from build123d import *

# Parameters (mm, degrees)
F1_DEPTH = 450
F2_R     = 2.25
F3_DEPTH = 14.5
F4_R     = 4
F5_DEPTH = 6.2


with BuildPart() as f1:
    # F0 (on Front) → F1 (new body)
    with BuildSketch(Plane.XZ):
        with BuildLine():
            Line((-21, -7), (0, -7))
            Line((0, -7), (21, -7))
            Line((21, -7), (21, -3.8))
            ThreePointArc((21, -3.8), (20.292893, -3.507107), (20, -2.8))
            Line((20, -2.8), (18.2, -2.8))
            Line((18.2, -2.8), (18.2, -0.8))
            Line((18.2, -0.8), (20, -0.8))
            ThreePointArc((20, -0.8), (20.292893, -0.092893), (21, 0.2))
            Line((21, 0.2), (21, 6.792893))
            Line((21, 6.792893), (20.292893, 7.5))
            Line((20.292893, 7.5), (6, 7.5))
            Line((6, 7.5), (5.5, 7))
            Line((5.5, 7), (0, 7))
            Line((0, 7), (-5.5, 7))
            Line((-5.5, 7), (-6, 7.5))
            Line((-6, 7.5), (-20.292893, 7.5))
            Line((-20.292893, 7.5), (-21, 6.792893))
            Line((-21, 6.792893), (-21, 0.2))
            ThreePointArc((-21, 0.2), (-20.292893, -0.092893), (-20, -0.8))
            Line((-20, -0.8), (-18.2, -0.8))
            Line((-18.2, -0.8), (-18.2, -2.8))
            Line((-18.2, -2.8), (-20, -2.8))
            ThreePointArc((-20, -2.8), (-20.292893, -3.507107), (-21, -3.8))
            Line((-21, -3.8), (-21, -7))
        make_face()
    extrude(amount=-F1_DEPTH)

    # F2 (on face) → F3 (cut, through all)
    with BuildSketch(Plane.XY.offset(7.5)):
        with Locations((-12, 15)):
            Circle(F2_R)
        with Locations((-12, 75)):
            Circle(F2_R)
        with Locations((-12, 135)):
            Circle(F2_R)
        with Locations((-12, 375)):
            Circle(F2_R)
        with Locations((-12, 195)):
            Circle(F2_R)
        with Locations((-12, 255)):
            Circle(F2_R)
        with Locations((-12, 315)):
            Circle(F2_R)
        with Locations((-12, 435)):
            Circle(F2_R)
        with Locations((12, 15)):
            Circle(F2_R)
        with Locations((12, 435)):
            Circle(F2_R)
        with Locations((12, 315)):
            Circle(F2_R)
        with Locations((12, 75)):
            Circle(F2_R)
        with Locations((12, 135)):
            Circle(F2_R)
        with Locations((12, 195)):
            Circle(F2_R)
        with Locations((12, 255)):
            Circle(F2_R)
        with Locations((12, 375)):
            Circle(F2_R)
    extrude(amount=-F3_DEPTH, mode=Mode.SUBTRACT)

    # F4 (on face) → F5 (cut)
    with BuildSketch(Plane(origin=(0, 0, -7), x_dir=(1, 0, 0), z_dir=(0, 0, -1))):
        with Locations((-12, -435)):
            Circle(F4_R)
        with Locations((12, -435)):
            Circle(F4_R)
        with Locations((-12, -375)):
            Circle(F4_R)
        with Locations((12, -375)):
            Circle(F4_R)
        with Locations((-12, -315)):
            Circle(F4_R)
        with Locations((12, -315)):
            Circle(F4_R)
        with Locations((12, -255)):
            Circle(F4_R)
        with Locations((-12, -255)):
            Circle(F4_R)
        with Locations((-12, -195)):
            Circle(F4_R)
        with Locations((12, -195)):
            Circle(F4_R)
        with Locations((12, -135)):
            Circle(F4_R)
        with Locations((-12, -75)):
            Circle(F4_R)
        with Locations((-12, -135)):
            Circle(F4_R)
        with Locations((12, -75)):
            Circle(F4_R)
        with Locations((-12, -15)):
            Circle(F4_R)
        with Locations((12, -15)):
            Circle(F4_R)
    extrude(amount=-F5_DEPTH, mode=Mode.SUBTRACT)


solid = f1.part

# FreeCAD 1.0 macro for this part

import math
import FreeCAD as App
import Part
import Sketcher

doc = App.newDocument("Part")
body = doc.addObject("PartDesign::Body", "Body")

sketch1 = body.newObject("Sketcher::SketchObject", "Sketch")
sketch1.AttachmentSupport = (doc.getObject("XZ_Plane"), [""])
sketch1.MapMode = "FlatFace"
sketch1.addGeometry([
    Part.LineSegment(App.Vector(-21, -7, 0), App.Vector(21, -7, 0)),
    Part.LineSegment(App.Vector(21, -7, 0), App.Vector(21, -3.8, 0)),
    Part.ArcOfCircle(Part.Circle(App.Vector(21, -2.8, 0), App.Vector(0, 0, 1), 1), math.radians(180), math.radians(270)),
    Part.LineSegment(App.Vector(20, -2.8, 0), App.Vector(18.2, -2.8, 0)),
    Part.LineSegment(App.Vector(18.2, -2.8, 0), App.Vector(18.2, -0.8, 0)),
    Part.LineSegment(App.Vector(18.2, -0.8, 0), App.Vector(20, -0.8, 0)),
    Part.ArcOfCircle(Part.Circle(App.Vector(21, -0.8, 0), App.Vector(0, 0, 1), 1), math.radians(90), math.radians(180)),
    Part.LineSegment(App.Vector(21, 0.2, 0), App.Vector(21, 6.8, 0)),
    Part.LineSegment(App.Vector(21, 6.8, 0), App.Vector(20.3, 7.5, 0)),
    Part.LineSegment(App.Vector(20.3, 7.5, 0), App.Vector(6, 7.5, 0)),
    Part.LineSegment(App.Vector(6, 7.5, 0), App.Vector(5.5, 7, 0)),
    Part.LineSegment(App.Vector(5.5, 7, 0), App.Vector(-5.5, 7, 0)),
    Part.LineSegment(App.Vector(-5.5, 7, 0), App.Vector(-6, 7.5, 0)),
    Part.LineSegment(App.Vector(-6, 7.5, 0), App.Vector(-20.3, 7.5, 0)),
    Part.LineSegment(App.Vector(-20.3, 7.5, 0), App.Vector(-21, 6.8, 0)),
    Part.LineSegment(App.Vector(-21, 6.8, 0), App.Vector(-21, 0.2, 0)),
    Part.ArcOfCircle(Part.Circle(App.Vector(-21, -0.8, 0), App.Vector(0, 0, 1), 1), math.radians(0), math.radians(90)),
    Part.LineSegment(App.Vector(-20, -0.8, 0), App.Vector(-18.2, -0.8, 0)),
    Part.LineSegment(App.Vector(-18.2, -0.8, 0), App.Vector(-18.2, -2.8, 0)),
    Part.LineSegment(App.Vector(-18.2, -2.8, 0), App.Vector(-20, -2.8, 0)),
    Part.ArcOfCircle(Part.Circle(App.Vector(-21, -2.8, 0), App.Vector(0, 0, 1), 1), math.radians(-90), math.radians(0)),
    Part.LineSegment(App.Vector(-21, -3.8, 0), App.Vector(-21, -7, 0)),
], False)
sketch1.addConstraint([
    Sketcher.Constraint("Coincident", 0, 2, 1, 1),
    Sketcher.Constraint("Coincident", 1, 2, 2, 2),
    Sketcher.Constraint("Coincident", 2, 1, 3, 1),
    Sketcher.Constraint("Coincident", 3, 2, 4, 1),
    Sketcher.Constraint("Coincident", 4, 2, 5, 1),
    Sketcher.Constraint("Coincident", 5, 2, 6, 2),
    Sketcher.Constraint("Coincident", 6, 1, 7, 1),
    Sketcher.Constraint("Coincident", 7, 2, 8, 1),
    Sketcher.Constraint("Coincident", 8, 2, 9, 1),
    Sketcher.Constraint("Coincident", 9, 2, 10, 1),
    Sketcher.Constraint("Coincident", 10, 2, 11, 1),
    Sketcher.Constraint("Coincident", 11, 2, 12, 1),
    Sketcher.Constraint("Coincident", 12, 2, 13, 1),
    Sketcher.Constraint("Coincident", 13, 2, 14, 1),
    Sketcher.Constraint("Coincident", 14, 2, 15, 1),
    Sketcher.Constraint("Coincident", 15, 2, 16, 2),
    Sketcher.Constraint("Coincident", 16, 1, 17, 1),
    Sketcher.Constraint("Coincident", 17, 2, 18, 1),
    Sketcher.Constraint("Coincident", 18, 2, 19, 1),
    Sketcher.Constraint("Coincident", 19, 2, 20, 2),
    Sketcher.Constraint("Coincident", 20, 1, 21, 1),
    Sketcher.Constraint("Coincident", 21, 2, 0, 1),
    Sketcher.Constraint("Horizontal", 0),
    Sketcher.Constraint("Vertical", 1),
    Sketcher.Constraint("Horizontal", 3),
    Sketcher.Constraint("Vertical", 4),
    Sketcher.Constraint("Horizontal", 5),
    Sketcher.Constraint("Vertical", 7),
    Sketcher.Constraint("Horizontal", 9),
    Sketcher.Constraint("Horizontal", 11),
    Sketcher.Constraint("Horizontal", 13),
    Sketcher.Constraint("Vertical", 15),
    Sketcher.Constraint("Horizontal", 17),
    Sketcher.Constraint("Vertical", 18),
    Sketcher.Constraint("Horizontal", 19),
    Sketcher.Constraint("Vertical", 21),
    Sketcher.Constraint("Equal", 2, 6),
    Sketcher.Constraint("Equal", 6, 16),
    Sketcher.Constraint("Equal", 16, 20),
    Sketcher.Constraint("Symmetric", 6, 3, 16, 3, -2),
    Sketcher.Constraint("Symmetric", 2, 3, 20, 3, -2),
    Sketcher.Constraint("Symmetric", 9, 2, 12, 2, -2),
    Sketcher.Constraint("Symmetric", 7, 2, 14, 2, -2),
    Sketcher.Constraint("Symmetric", 4, 2, 17, 2, -2),
    Sketcher.Constraint("Perpendicular", 8, 10),
    Sketcher.Constraint("Perpendicular", 10, 12),
    Sketcher.Constraint("Perpendicular", 12, 14),
    Sketcher.Constraint("Horizontal", 20, 3, 2, 1),
    Sketcher.Constraint("Horizontal", 16, 3, 4, 2),
    Sketcher.Constraint("Horizontal", 3, 2, 18, 2),
    Sketcher.Constraint("Vertical", 2, 3, 6, 3),
    Sketcher.Constraint("Vertical", 6, 3, 0, 2),
    Sketcher.Constraint("Vertical", 1, 2, 6, 1),
    Sketcher.Constraint("Vertical", 15, 2, 20, 1),
    Sketcher.Constraint("Equal", 9, 13),
    Sketcher.Constraint("Radius", 2, 0.999999),
    Sketcher.Constraint("DistanceX", 0, 1, 0, 2, 42.0),
    Sketcher.Constraint("DistanceX", 11, 2, 11, 1, 11.0),
    Sketcher.Constraint("DistanceY", 4, 1, 4, 2, 2.0),
    Sketcher.Constraint("Distance", 8, 1.0),
    Sketcher.Constraint("DistanceX", 3, 2, 3, 1, 1.8),
    Sketcher.Constraint("DistanceY", 1, 1, 1, 2, 3.2),
    Sketcher.Constraint("DistanceY", 0, 2, -1, 1, 7.0),
    Sketcher.Constraint("DistanceX", -1, 1, 9, 2, 6.0),
    Sketcher.Constraint("DistanceY", -1, 1, 10, 2, 7.0),
])
pad1 = body.newObject("PartDesign::Pad", "Pad")
pad1.Profile = sketch1
pad1.Length = 450
pad1.Reversed = True

sketch2 = body.newObject("Sketcher::SketchObject", "Sketch001")
sketch2.AttachmentSupport = (doc.getObject("XY_Plane"), [""])
sketch2.MapMode = "FlatFace"
sketch2.AttachmentOffset = App.Placement(App.Vector(0, 0, 7.5), App.Rotation())
sketch2.addGeometry([
    Part.Circle(App.Vector(-12, 15, 0), App.Vector(0, 0, 1), 2.2),
    Part.Circle(App.Vector(-12, 75, 0), App.Vector(0, 0, 1), 2.2),
    Part.Circle(App.Vector(-12, 135, 0), App.Vector(0, 0, 1), 2.2),
    Part.Circle(App.Vector(-12, 375, 0), App.Vector(0, 0, 1), 2.2),
    Part.Circle(App.Vector(-12, 195, 0), App.Vector(0, 0, 1), 2.2),
    Part.Circle(App.Vector(-12, 255, 0), App.Vector(0, 0, 1), 2.2),
    Part.Circle(App.Vector(-12, 315, 0), App.Vector(0, 0, 1), 2.2),
    Part.Circle(App.Vector(-12, 435, 0), App.Vector(0, 0, 1), 2.2),
    Part.Circle(App.Vector(12, 15, 0), App.Vector(0, 0, 1), 2.2),
    Part.Circle(App.Vector(12, 435, 0), App.Vector(0, 0, 1), 2.2),
    Part.Circle(App.Vector(12, 315, 0), App.Vector(0, 0, 1), 2.2),
    Part.Circle(App.Vector(12, 75, 0), App.Vector(0, 0, 1), 2.2),
    Part.Circle(App.Vector(12, 135, 0), App.Vector(0, 0, 1), 2.2),
    Part.Circle(App.Vector(12, 195, 0), App.Vector(0, 0, 1), 2.2),
    Part.Circle(App.Vector(12, 255, 0), App.Vector(0, 0, 1), 2.2),
    Part.Circle(App.Vector(12, 375, 0), App.Vector(0, 0, 1), 2.2),
], False)
sketch2.addConstraint([
    Sketcher.Constraint("Equal", 0, 1),
    Sketcher.Constraint("Equal", 1, 2),
    Sketcher.Constraint("Equal", 2, 3),
    Sketcher.Constraint("Equal", 3, 4),
    Sketcher.Constraint("Equal", 4, 5),
    Sketcher.Constraint("Equal", 5, 6),
    Sketcher.Constraint("Equal", 6, 7),
    Sketcher.Constraint("Equal", 7, 8),
    Sketcher.Constraint("Equal", 8, 9),
    Sketcher.Constraint("Equal", 9, 10),
    Sketcher.Constraint("Equal", 10, 11),
    Sketcher.Constraint("Equal", 11, 12),
    Sketcher.Constraint("Equal", 12, 13),
    Sketcher.Constraint("Equal", 13, 14),
    Sketcher.Constraint("Equal", 14, 15),
    Sketcher.Constraint("Symmetric", 0, 3, 8, 3, -2),
    Sketcher.Constraint("Symmetric", 7, 3, 9, 3, -2),
    Sketcher.Constraint("Symmetric", 6, 3, 10, 3, -2),
    Sketcher.Constraint("Symmetric", 1, 3, 11, 3, -2),
    Sketcher.Constraint("Symmetric", 2, 3, 12, 3, -2),
    Sketcher.Constraint("Symmetric", 4, 3, 13, 3, -2),
    Sketcher.Constraint("Symmetric", 5, 3, 14, 3, -2),
    Sketcher.Constraint("Symmetric", 3, 3, 15, 3, -2),
    Sketcher.Constraint("Vertical", 0, 3, 1, 3),
    Sketcher.Constraint("Vertical", 1, 3, 2, 3),
    Sketcher.Constraint("Vertical", 2, 3, 3, 3),
    Sketcher.Constraint("Vertical", 3, 3, 4, 3),
    Sketcher.Constraint("Vertical", 4, 3, 5, 3),
    Sketcher.Constraint("Vertical", 5, 3, 6, 3),
    Sketcher.Constraint("Vertical", 6, 3, 7, 3),
    Sketcher.Constraint("Diameter", 0, 4.5),
    Sketcher.Constraint("DistanceX", 0, 3, -1, 1, 12.0),
    Sketcher.Constraint("DistanceY", -1, 1, 0, 3, 15.0),
    Sketcher.Constraint("DistanceY", -1, 1, 1, 3, 75.0),
    Sketcher.Constraint("DistanceY", -1, 1, 2, 3, 135.0),
    Sketcher.Constraint("DistanceY", -1, 1, 3, 3, 375.0),
    Sketcher.Constraint("DistanceY", -1, 1, 4, 3, 195.0),
    Sketcher.Constraint("DistanceY", -1, 1, 5, 3, 255.0),
    Sketcher.Constraint("DistanceY", -1, 1, 6, 3, 315.0),
    Sketcher.Constraint("DistanceY", -1, 1, 7, 3, 435.0),
])
pocket1 = body.newObject("PartDesign::Pocket", "Pocket")
pocket1.Profile = sketch2
pocket1.Type = "ThroughAll"

sketch3 = body.newObject("Sketcher::SketchObject", "Sketch002")
sketch3.AttachmentSupport = (doc.getObject("XY_Plane"), [""])
sketch3.MapMode = "FlatFace"
sketch3.AttachmentOffset = App.Placement(App.Vector(0, 0, -7), App.Rotation())
sketch3.addGeometry([
    Part.Circle(App.Vector(-12, 435, 0), App.Vector(0, 0, 1), 4),
    Part.Circle(App.Vector(12, 435, 0), App.Vector(0, 0, 1), 4),
    Part.Circle(App.Vector(-12, 375, 0), App.Vector(0, 0, 1), 4),
    Part.Circle(App.Vector(12, 375, 0), App.Vector(0, 0, 1), 4),
    Part.Circle(App.Vector(-12, 315, 0), App.Vector(0, 0, 1), 4),
    Part.Circle(App.Vector(12, 315, 0), App.Vector(0, 0, 1), 4),
    Part.Circle(App.Vector(12, 255, 0), App.Vector(0, 0, 1), 4),
    Part.Circle(App.Vector(-12, 255, 0), App.Vector(0, 0, 1), 4),
    Part.Circle(App.Vector(-12, 195, 0), App.Vector(0, 0, 1), 4),
    Part.Circle(App.Vector(12, 195, 0), App.Vector(0, 0, 1), 4),
    Part.Circle(App.Vector(12, 135, 0), App.Vector(0, 0, 1), 4),
    Part.Circle(App.Vector(-12, 75, 0), App.Vector(0, 0, 1), 4),
    Part.Circle(App.Vector(-12, 135, 0), App.Vector(0, 0, 1), 4),
    Part.Circle(App.Vector(12, 75, 0), App.Vector(0, 0, 1), 4),
    Part.Circle(App.Vector(-12, 15, 0), App.Vector(0, 0, 1), 4),
    Part.Circle(App.Vector(12, 15, 0), App.Vector(0, 0, 1), 4),
], False)
sketch3.addConstraint([
    Sketcher.Constraint("Equal", 0, 1),
    Sketcher.Constraint("Equal", 1, 2),
    Sketcher.Constraint("Equal", 2, 3),
    Sketcher.Constraint("Equal", 3, 4),
    Sketcher.Constraint("Equal", 4, 5),
    Sketcher.Constraint("Equal", 5, 6),
    Sketcher.Constraint("Equal", 6, 7),
    Sketcher.Constraint("Equal", 7, 8),
    Sketcher.Constraint("Equal", 8, 9),
    Sketcher.Constraint("Equal", 9, 10),
    Sketcher.Constraint("Equal", 10, 11),
    Sketcher.Constraint("Equal", 11, 12),
    Sketcher.Constraint("Equal", 12, 13),
    Sketcher.Constraint("Equal", 13, 14),
    Sketcher.Constraint("Equal", 14, 15),
    Sketcher.Constraint("Symmetric", 0, 3, 1, 3, -2),
    Sketcher.Constraint("Symmetric", 2, 3, 3, 3, -2),
    Sketcher.Constraint("Symmetric", 4, 3, 5, 3, -2),
    Sketcher.Constraint("Symmetric", 6, 3, 7, 3, -2),
    Sketcher.Constraint("Symmetric", 8, 3, 9, 3, -2),
    Sketcher.Constraint("Symmetric", 10, 3, 12, 3, -2),
    Sketcher.Constraint("Symmetric", 11, 3, 13, 3, -2),
    Sketcher.Constraint("Symmetric", 14, 3, 15, 3, -2),
    Sketcher.Constraint("Vertical", 0, 3, 2, 3),
    Sketcher.Constraint("Vertical", 2, 3, 4, 3),
    Sketcher.Constraint("Vertical", 5, 3, 6, 3),
    Sketcher.Constraint("Vertical", 7, 3, 8, 3),
    Sketcher.Constraint("Vertical", 9, 3, 10, 3),
    Sketcher.Constraint("Vertical", 8, 3, 11, 3),
    Sketcher.Constraint("Vertical", 12, 3, 14, 3),
    Sketcher.Constraint("Diameter", 0, 8.0),
    Sketcher.Constraint("DistanceX", 0, 3, -1, 1, 12.0),
    Sketcher.Constraint("DistanceY", -1, 1, 0, 3, 435.0),
    Sketcher.Constraint("DistanceY", -1, 1, 2, 3, 375.0),
    Sketcher.Constraint("DistanceY", -1, 1, 4, 3, 315.0),
    Sketcher.Constraint("DistanceY", -1, 1, 6, 3, 255.0),
    Sketcher.Constraint("DistanceY", -1, 1, 8, 3, 195.0),
    Sketcher.Constraint("DistanceY", -1, 1, 10, 3, 135.0),
    Sketcher.Constraint("DistanceY", -1, 1, 11, 3, 75.0),
    Sketcher.Constraint("DistanceY", -1, 1, 14, 3, 15.0),
])
pocket2 = body.newObject("PartDesign::Pocket", "Pocket001")
pocket2.Profile = sketch3
pocket2.Length = 6.2
pocket2.Reversed = True

doc.recompute()
